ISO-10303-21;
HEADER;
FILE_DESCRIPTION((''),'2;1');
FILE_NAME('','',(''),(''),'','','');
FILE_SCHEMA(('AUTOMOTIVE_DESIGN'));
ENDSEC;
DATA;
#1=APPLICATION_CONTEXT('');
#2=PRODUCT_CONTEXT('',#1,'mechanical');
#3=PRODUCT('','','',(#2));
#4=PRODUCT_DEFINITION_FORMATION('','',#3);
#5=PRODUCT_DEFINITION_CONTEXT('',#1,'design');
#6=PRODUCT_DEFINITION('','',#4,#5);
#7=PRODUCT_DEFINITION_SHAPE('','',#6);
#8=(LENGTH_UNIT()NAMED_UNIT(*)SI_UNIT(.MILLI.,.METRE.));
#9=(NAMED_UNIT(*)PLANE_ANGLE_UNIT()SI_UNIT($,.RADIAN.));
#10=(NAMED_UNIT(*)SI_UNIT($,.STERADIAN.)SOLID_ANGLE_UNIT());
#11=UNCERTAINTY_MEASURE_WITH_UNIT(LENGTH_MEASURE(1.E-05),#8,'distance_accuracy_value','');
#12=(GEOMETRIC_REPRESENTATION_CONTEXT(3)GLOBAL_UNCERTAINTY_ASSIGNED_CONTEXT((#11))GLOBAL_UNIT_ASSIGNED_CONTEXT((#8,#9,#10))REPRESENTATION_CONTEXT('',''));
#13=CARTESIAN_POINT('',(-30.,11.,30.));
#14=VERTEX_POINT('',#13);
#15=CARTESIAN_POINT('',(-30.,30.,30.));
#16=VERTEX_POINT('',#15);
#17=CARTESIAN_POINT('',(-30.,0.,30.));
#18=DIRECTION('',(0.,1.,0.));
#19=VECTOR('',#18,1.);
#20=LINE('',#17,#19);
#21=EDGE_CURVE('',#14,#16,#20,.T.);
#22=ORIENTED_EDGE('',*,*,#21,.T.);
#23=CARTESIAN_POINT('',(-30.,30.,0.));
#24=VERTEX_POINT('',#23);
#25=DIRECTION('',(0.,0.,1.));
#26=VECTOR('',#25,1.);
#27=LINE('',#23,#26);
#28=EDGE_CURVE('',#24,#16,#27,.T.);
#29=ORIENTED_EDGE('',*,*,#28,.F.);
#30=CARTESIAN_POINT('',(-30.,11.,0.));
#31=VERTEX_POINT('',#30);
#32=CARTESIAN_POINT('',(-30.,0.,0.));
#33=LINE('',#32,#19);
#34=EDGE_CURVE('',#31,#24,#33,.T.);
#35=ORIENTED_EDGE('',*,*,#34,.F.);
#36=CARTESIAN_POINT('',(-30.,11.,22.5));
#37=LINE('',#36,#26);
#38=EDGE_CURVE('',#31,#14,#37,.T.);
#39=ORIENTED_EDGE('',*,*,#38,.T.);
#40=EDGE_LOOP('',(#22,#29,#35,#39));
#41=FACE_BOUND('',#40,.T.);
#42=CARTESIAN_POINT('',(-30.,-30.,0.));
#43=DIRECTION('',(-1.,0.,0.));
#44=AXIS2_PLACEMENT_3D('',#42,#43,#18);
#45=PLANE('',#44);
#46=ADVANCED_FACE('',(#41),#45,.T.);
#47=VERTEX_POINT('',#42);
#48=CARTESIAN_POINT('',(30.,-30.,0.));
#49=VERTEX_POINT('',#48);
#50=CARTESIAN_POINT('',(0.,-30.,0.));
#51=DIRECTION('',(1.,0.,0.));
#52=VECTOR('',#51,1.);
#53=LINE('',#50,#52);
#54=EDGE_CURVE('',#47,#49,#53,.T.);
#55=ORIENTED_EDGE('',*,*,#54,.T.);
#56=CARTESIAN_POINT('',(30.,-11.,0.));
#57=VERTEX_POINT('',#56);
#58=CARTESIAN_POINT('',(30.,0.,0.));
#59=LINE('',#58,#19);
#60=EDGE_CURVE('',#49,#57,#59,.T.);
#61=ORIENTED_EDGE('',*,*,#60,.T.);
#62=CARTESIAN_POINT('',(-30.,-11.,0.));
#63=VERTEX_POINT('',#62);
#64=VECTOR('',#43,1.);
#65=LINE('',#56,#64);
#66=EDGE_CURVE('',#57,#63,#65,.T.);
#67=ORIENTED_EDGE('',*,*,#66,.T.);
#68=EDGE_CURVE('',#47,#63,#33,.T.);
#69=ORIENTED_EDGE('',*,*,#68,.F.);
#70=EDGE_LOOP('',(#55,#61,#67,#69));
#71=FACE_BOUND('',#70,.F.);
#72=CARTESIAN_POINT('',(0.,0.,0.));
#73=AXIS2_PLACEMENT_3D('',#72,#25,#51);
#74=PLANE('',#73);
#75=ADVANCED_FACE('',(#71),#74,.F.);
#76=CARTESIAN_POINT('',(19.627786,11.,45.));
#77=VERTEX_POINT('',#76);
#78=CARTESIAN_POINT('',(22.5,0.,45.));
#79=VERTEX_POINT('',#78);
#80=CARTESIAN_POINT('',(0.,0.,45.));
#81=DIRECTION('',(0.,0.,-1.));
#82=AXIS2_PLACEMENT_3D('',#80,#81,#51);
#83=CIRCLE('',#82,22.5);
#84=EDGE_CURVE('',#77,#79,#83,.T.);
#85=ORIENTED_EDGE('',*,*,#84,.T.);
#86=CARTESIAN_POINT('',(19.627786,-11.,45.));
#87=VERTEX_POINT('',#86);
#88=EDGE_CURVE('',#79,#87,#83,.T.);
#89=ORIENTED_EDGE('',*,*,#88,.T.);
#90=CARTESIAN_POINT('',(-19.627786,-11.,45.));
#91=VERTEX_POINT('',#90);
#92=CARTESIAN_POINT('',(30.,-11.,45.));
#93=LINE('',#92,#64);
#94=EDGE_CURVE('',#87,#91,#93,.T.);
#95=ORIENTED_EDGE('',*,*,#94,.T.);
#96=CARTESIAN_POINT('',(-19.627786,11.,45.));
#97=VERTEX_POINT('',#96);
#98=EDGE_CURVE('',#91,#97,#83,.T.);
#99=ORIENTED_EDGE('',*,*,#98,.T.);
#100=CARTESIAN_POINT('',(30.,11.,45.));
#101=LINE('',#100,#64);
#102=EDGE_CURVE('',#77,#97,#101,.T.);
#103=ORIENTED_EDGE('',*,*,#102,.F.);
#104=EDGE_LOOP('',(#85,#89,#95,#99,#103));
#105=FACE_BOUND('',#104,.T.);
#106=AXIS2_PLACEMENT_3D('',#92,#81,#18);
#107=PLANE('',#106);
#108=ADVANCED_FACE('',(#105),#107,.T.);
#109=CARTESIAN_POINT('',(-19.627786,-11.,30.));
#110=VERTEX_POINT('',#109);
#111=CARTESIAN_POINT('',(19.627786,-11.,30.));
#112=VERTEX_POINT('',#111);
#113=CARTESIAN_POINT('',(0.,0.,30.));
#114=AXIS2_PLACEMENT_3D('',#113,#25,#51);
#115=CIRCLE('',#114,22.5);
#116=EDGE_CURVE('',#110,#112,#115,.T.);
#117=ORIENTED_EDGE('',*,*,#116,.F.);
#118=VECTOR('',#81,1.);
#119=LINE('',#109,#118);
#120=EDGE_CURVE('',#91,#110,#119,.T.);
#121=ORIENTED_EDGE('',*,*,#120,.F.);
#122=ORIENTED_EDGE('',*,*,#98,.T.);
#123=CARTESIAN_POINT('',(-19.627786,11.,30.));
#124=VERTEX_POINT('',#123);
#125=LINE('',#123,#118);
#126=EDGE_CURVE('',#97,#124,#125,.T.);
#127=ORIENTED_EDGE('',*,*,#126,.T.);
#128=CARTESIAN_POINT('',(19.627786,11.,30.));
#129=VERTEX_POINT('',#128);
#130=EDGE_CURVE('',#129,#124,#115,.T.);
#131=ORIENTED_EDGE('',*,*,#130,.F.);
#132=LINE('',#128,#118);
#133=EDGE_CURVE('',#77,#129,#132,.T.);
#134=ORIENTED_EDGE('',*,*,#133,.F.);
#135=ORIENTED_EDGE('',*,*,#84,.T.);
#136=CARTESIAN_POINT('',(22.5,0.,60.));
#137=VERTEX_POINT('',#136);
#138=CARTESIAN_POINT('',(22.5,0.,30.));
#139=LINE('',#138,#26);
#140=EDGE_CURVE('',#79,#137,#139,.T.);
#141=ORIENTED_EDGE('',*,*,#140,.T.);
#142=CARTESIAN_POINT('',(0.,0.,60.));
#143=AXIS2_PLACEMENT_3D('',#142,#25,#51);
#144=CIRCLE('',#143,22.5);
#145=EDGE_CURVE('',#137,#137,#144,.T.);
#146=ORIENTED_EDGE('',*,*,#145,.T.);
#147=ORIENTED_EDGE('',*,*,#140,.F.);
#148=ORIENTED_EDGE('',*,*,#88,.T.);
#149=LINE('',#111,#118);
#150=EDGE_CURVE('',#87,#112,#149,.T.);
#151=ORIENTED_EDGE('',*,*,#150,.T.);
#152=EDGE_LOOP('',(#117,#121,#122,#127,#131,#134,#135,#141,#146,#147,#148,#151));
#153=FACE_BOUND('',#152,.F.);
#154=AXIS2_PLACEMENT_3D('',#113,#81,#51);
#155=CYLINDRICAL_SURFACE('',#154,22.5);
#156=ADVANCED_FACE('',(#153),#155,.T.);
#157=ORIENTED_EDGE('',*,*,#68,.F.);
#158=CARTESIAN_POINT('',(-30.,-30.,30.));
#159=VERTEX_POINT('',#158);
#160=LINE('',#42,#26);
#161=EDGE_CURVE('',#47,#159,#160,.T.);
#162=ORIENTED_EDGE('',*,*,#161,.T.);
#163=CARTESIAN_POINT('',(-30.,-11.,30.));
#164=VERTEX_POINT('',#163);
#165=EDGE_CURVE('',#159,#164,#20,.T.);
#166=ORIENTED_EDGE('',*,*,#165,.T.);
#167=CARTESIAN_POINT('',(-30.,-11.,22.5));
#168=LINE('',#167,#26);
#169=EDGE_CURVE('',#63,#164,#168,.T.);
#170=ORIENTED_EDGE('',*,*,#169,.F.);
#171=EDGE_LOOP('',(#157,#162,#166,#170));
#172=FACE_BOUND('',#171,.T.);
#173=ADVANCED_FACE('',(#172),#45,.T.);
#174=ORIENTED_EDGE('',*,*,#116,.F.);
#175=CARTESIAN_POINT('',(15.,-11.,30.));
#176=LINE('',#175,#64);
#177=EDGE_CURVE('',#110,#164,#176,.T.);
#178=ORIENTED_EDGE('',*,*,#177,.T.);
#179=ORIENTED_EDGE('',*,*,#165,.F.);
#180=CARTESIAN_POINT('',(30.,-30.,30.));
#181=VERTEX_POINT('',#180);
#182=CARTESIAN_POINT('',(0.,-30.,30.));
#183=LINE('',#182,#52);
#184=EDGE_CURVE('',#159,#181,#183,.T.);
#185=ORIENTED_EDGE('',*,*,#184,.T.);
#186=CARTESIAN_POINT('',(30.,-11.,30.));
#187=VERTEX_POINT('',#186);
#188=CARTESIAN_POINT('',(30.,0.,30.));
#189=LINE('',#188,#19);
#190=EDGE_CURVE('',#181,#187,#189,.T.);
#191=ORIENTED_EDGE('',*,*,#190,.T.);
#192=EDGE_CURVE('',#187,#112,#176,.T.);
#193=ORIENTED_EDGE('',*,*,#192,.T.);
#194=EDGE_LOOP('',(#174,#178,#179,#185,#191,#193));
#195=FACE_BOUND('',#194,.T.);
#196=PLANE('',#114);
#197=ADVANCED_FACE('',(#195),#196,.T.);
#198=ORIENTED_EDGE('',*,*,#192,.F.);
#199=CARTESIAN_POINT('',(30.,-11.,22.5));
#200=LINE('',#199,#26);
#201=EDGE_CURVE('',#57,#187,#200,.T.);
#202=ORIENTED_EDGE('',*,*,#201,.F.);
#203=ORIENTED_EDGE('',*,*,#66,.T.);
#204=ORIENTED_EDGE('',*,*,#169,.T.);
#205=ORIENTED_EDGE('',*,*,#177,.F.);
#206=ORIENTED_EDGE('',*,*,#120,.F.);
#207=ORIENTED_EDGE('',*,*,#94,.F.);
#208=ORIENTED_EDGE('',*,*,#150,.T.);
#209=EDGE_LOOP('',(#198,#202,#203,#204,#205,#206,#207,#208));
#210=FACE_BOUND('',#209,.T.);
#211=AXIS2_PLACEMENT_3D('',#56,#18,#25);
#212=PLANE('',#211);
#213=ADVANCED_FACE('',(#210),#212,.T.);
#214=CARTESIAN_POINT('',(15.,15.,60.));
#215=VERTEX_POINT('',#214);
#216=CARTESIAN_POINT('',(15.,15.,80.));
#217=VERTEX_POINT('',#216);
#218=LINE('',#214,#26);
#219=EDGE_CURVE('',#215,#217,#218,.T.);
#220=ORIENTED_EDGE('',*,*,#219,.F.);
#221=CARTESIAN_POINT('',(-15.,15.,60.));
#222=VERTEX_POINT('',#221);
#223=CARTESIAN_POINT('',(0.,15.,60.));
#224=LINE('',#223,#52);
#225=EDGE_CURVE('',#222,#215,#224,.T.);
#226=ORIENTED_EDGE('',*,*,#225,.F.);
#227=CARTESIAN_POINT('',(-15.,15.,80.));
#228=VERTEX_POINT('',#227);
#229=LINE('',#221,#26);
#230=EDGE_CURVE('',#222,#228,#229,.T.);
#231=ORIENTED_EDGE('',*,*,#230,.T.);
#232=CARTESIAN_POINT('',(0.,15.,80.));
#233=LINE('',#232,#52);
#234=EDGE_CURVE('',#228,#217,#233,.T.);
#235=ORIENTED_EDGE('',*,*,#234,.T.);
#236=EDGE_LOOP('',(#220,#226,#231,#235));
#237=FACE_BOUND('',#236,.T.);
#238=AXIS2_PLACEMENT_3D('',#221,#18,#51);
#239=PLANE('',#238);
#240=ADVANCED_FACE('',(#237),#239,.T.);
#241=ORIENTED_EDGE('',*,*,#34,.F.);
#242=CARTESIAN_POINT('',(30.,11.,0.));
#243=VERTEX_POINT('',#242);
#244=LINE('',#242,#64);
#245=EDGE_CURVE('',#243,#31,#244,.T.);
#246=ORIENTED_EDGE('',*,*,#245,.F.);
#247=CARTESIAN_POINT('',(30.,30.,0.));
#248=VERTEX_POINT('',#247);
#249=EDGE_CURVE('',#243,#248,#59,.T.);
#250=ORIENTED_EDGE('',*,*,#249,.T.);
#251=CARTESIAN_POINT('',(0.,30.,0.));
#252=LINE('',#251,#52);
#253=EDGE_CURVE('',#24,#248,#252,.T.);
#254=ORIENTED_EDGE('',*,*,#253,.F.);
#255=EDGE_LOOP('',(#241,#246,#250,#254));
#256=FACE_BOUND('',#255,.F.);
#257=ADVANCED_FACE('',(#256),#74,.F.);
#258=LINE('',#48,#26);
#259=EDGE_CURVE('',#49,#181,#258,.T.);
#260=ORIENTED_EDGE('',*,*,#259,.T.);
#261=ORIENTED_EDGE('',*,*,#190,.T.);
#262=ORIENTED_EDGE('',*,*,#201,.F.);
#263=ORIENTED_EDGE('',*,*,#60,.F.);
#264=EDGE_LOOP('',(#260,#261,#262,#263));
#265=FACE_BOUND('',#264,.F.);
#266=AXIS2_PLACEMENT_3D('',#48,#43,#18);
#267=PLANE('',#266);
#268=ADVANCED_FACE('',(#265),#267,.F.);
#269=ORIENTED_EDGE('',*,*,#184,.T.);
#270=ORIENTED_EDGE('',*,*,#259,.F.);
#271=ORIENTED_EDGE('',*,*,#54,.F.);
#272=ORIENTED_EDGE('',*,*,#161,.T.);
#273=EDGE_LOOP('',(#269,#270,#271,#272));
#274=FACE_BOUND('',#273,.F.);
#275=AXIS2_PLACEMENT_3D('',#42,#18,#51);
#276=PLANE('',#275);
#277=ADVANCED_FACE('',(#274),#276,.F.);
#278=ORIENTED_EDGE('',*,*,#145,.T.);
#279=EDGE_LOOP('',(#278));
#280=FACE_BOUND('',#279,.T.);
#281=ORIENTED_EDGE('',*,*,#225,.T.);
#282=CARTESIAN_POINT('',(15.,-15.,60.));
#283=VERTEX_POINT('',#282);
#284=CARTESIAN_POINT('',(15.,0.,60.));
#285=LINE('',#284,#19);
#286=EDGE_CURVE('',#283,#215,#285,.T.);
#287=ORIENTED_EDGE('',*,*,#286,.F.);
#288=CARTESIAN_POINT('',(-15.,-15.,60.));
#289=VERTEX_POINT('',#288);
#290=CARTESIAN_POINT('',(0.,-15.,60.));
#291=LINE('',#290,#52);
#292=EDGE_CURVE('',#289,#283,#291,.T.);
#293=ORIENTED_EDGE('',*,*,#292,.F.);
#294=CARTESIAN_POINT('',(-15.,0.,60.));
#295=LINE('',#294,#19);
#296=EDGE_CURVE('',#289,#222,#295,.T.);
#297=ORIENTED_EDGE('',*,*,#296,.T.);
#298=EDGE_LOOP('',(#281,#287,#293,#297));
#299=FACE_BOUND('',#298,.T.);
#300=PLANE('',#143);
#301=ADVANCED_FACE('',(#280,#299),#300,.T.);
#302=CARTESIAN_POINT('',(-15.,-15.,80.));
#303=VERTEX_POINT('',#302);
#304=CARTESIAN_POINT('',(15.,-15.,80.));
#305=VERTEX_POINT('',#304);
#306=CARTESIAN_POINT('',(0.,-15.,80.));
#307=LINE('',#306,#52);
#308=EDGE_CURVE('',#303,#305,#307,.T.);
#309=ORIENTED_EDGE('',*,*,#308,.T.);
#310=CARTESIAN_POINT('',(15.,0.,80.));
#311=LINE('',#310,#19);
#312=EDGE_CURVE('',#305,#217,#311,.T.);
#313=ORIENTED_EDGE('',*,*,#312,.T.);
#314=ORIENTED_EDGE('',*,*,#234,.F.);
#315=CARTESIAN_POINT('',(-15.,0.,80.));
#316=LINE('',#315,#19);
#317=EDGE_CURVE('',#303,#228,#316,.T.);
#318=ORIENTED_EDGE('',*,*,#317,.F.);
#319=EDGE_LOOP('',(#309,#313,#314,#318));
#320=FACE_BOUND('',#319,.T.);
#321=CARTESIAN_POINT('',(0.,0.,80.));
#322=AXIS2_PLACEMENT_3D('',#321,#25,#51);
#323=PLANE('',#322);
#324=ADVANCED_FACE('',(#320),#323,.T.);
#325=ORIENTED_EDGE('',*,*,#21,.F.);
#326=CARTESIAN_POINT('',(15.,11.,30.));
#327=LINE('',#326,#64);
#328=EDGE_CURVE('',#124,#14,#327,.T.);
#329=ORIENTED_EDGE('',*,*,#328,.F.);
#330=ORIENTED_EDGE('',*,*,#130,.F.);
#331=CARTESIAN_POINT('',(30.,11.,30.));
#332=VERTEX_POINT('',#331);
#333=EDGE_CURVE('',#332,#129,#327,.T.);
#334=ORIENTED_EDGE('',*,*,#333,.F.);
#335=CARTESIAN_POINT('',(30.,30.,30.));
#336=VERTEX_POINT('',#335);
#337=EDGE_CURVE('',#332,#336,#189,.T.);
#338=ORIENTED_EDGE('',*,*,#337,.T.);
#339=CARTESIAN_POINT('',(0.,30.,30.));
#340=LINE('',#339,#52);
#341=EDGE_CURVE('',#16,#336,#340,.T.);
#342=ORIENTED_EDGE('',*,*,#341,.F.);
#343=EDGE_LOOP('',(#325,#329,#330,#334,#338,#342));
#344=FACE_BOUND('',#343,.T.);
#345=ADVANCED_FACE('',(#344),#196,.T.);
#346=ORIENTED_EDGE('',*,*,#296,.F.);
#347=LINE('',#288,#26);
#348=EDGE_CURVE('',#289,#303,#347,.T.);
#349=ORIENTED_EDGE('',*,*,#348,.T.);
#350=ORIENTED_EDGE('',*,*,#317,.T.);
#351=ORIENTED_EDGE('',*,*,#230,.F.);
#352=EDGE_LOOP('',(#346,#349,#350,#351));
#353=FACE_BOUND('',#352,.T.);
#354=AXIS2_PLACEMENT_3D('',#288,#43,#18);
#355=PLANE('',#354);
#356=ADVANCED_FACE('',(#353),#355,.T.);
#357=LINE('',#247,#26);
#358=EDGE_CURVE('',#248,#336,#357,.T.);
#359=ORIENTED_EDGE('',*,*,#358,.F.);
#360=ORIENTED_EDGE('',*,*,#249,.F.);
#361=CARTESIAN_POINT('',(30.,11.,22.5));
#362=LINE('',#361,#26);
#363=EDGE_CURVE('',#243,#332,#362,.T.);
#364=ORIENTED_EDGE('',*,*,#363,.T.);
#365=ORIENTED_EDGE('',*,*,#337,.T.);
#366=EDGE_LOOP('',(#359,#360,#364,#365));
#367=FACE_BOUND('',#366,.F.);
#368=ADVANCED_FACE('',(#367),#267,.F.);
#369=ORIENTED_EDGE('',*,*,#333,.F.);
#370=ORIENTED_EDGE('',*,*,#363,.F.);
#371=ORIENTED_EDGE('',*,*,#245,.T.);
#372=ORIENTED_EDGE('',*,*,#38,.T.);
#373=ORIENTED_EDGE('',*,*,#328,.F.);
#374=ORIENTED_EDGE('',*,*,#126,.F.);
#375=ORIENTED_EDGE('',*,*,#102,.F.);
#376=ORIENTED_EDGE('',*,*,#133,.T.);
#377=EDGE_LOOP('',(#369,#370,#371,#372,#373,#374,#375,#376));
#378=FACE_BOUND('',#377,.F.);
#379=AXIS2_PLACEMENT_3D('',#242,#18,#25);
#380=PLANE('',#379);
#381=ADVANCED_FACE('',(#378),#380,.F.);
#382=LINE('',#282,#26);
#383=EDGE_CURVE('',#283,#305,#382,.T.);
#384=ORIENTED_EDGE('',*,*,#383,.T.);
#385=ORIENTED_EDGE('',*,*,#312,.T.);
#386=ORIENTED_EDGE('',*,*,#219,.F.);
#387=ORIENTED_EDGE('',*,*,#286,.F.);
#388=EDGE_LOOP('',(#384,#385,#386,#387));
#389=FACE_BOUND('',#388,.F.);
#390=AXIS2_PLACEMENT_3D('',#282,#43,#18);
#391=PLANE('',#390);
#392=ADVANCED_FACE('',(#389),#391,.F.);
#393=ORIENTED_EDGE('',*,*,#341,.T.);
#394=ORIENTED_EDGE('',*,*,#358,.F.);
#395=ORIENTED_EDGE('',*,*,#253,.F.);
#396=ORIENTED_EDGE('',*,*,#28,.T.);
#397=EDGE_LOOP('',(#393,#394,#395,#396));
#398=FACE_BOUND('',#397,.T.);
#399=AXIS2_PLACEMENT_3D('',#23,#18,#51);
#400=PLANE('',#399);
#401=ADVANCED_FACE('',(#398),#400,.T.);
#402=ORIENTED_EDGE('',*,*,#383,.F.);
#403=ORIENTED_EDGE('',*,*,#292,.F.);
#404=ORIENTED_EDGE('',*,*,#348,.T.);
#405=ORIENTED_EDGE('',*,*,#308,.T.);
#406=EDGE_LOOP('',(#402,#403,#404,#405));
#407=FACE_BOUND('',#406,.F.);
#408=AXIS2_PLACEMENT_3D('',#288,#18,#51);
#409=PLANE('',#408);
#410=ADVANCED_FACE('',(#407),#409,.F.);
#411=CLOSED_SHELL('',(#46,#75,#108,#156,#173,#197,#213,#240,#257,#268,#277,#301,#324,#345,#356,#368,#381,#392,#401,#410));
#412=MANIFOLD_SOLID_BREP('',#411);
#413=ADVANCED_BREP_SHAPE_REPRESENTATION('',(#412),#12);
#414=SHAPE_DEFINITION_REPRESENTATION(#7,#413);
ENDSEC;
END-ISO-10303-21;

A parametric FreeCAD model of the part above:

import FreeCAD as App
import Part
import Sketcher

V = App.Vector
Q = App.Units.Quantity


def add_polygon(sketch, points):
    """Adds a closed chain of lines whose ends are joined by coincident constraints."""
    first, n = sketch.GeometryCount, len(points)
    for a, b in zip(points, points[1:] + points[:1]):
        sketch.addGeometry(Part.LineSegment(App.Vector(*a, 0), App.Vector(*b, 0)), False)
    for i in range(n):
        sketch.addConstraint(Sketcher.Constraint("Coincident", first + i, 2, first + (i + 1) % n, 1))

doc = App.newDocument("Part")
params = doc.addObject("Spreadsheet::Sheet", "Params")
for row, (alias, value) in enumerate([
    ("sketch1_width", "60 mm"),
    ("pad1_length", "30 mm"),
    ("sketch2_diameter", "45 mm"),
    ("pad2_length", "30 mm"),
    ("sketch3_width", "30 mm"),
    ("pad3_length", "20 mm"),
    ("sketch4_width", "22 mm"),
    ("sketch4_height", "45 mm"),
    ("pocket1_length", "60 mm"),
], start=1):
    params.set(f"A{row}", alias)
    params.set(f"B{row}", "=" + value)
    params.setAlias(f"B{row}", alias)

body = doc.addObject("PartDesign::Body", "Body")

# Sketch on XY plane
sketch1 = body.newObject("Sketcher::SketchObject", "Sketch")
sketch1.AttachmentSupport = (doc.getObject("XY_Plane"), [""])
sketch1.MapMode = "FlatFace"
add_polygon(sketch1, [(-30, 30), (-30, -30), (30, -30), (30, 30)])  # lines 0-3
sketch1.addConstraint([
    Sketcher.Constraint("Vertical", 0),
    Sketcher.Constraint("Horizontal", 1),
    Sketcher.Constraint("Vertical", 2),
    Sketcher.Constraint("Horizontal", 3),
    Sketcher.Constraint("Symmetric", 0, 2, 2, 2, -1, 1),
    Sketcher.Constraint("Equal", 3, 0),
    Sketcher.Constraint("DistanceX", 1, 1, 1, 2, Q("60 mm")),
])
sketch1.setExpression("Constraints[10]", "Params.sketch1_width")
pad1 = body.newObject("PartDesign::Pad", "Pad")
pad1.Profile = sketch1
pad1.setExpression("Length", "Params.pad1_length")

# Sketch on XY plane
sketch2 = body.newObject("Sketcher::SketchObject", "Sketch001")
sketch2.AttachmentSupport = (doc.getObject("XY_Plane"), [""])
sketch2.MapMode = "FlatFace"
sketch2.AttachmentOffset = App.Placement(V(0, 0, 30), App.Rotation())
sketch2.addGeometry(Part.Circle(V(0, 0, 0), V(0, 0, 1), 22), False)
sketch2.addConstraint([
    Sketcher.Constraint("Coincident", 0, 3, -1, 1),
    Sketcher.Constraint("Diameter", 0, Q("45 mm")),
])
sketch2.setExpression("Constraints[1]", "Params.sketch2_diameter")
pad2 = body.newObject("PartDesign::Pad", "Pad001")
pad2.Profile = sketch2
pad2.setExpression("Length", "Params.pad2_length")

# Sketch on XY plane
sketch3 = body.newObject("Sketcher::SketchObject", "Sketch002")
sketch3.AttachmentSupport = (doc.getObject("XY_Plane"), [""])
sketch3.MapMode = "FlatFace"
sketch3.AttachmentOffset = App.Placement(V(0, 0, 60), App.Rotation())
add_polygon(sketch3, [(-15, 15), (-15, -15), (15, -15), (15, 15)])  # lines 0-3
sketch3.addConstraint([
    Sketcher.Constraint("Vertical", 0),
    Sketcher.Constraint("Horizontal", 1),
    Sketcher.Constraint("Vertical", 2),
    Sketcher.Constraint("Horizontal", 3),
    Sketcher.Constraint("Symmetric", 0, 2, 2, 2, -1, 1),
    Sketcher.Constraint("Equal", 3, 0),
    Sketcher.Constraint("DistanceX", 1, 1, 1, 2, Q("30 mm")),
])
sketch3.setExpression("Constraints[10]", "Params.sketch3_width")
pad3 = body.newObject("PartDesign::Pad", "Pad002")
pad3.Profile = sketch3
pad3.setExpression("Length", "Params.pad3_length")

# Sketch on YZ plane
sketch4 = body.newObject("Sketcher::SketchObject", "Sketch003")
sketch4.AttachmentSupport = (doc.getObject("YZ_Plane"), [""])
sketch4.MapMode = "FlatFace"
sketch4.AttachmentOffset = App.Placement(V(0, 0, 30), App.Rotation())
add_polygon(sketch4, [(-11, 45), (-11, 0), (11, 0), (11, 45)])  # lines 0-3
sketch4.addConstraint([
    Sketcher.Constraint("Vertical", 0),
    Sketcher.Constraint("Horizontal", 1),
    Sketcher.Constraint("Vertical", 2),
    Sketcher.Constraint("Horizontal", 3),
    Sketcher.Constraint("Symmetric", 0, 2, 1, 2, -1, 1),
    Sketcher.Constraint("DistanceX", 1, 1, 1, 2, Q("22 mm")),
    Sketcher.Constraint("DistanceY", 0, 2, 0, 1, Q("45 mm")),
])
sketch4.setExpression("Constraints[9]", "Params.sketch4_width")
sketch4.setExpression("Constraints[10]", "Params.sketch4_height")
pocket1 = body.newObject("PartDesign::Pocket", "Pocket")
pocket1.Profile = sketch4
pocket1.setExpression("Length", "Params.pocket1_length")

doc.recompute()
